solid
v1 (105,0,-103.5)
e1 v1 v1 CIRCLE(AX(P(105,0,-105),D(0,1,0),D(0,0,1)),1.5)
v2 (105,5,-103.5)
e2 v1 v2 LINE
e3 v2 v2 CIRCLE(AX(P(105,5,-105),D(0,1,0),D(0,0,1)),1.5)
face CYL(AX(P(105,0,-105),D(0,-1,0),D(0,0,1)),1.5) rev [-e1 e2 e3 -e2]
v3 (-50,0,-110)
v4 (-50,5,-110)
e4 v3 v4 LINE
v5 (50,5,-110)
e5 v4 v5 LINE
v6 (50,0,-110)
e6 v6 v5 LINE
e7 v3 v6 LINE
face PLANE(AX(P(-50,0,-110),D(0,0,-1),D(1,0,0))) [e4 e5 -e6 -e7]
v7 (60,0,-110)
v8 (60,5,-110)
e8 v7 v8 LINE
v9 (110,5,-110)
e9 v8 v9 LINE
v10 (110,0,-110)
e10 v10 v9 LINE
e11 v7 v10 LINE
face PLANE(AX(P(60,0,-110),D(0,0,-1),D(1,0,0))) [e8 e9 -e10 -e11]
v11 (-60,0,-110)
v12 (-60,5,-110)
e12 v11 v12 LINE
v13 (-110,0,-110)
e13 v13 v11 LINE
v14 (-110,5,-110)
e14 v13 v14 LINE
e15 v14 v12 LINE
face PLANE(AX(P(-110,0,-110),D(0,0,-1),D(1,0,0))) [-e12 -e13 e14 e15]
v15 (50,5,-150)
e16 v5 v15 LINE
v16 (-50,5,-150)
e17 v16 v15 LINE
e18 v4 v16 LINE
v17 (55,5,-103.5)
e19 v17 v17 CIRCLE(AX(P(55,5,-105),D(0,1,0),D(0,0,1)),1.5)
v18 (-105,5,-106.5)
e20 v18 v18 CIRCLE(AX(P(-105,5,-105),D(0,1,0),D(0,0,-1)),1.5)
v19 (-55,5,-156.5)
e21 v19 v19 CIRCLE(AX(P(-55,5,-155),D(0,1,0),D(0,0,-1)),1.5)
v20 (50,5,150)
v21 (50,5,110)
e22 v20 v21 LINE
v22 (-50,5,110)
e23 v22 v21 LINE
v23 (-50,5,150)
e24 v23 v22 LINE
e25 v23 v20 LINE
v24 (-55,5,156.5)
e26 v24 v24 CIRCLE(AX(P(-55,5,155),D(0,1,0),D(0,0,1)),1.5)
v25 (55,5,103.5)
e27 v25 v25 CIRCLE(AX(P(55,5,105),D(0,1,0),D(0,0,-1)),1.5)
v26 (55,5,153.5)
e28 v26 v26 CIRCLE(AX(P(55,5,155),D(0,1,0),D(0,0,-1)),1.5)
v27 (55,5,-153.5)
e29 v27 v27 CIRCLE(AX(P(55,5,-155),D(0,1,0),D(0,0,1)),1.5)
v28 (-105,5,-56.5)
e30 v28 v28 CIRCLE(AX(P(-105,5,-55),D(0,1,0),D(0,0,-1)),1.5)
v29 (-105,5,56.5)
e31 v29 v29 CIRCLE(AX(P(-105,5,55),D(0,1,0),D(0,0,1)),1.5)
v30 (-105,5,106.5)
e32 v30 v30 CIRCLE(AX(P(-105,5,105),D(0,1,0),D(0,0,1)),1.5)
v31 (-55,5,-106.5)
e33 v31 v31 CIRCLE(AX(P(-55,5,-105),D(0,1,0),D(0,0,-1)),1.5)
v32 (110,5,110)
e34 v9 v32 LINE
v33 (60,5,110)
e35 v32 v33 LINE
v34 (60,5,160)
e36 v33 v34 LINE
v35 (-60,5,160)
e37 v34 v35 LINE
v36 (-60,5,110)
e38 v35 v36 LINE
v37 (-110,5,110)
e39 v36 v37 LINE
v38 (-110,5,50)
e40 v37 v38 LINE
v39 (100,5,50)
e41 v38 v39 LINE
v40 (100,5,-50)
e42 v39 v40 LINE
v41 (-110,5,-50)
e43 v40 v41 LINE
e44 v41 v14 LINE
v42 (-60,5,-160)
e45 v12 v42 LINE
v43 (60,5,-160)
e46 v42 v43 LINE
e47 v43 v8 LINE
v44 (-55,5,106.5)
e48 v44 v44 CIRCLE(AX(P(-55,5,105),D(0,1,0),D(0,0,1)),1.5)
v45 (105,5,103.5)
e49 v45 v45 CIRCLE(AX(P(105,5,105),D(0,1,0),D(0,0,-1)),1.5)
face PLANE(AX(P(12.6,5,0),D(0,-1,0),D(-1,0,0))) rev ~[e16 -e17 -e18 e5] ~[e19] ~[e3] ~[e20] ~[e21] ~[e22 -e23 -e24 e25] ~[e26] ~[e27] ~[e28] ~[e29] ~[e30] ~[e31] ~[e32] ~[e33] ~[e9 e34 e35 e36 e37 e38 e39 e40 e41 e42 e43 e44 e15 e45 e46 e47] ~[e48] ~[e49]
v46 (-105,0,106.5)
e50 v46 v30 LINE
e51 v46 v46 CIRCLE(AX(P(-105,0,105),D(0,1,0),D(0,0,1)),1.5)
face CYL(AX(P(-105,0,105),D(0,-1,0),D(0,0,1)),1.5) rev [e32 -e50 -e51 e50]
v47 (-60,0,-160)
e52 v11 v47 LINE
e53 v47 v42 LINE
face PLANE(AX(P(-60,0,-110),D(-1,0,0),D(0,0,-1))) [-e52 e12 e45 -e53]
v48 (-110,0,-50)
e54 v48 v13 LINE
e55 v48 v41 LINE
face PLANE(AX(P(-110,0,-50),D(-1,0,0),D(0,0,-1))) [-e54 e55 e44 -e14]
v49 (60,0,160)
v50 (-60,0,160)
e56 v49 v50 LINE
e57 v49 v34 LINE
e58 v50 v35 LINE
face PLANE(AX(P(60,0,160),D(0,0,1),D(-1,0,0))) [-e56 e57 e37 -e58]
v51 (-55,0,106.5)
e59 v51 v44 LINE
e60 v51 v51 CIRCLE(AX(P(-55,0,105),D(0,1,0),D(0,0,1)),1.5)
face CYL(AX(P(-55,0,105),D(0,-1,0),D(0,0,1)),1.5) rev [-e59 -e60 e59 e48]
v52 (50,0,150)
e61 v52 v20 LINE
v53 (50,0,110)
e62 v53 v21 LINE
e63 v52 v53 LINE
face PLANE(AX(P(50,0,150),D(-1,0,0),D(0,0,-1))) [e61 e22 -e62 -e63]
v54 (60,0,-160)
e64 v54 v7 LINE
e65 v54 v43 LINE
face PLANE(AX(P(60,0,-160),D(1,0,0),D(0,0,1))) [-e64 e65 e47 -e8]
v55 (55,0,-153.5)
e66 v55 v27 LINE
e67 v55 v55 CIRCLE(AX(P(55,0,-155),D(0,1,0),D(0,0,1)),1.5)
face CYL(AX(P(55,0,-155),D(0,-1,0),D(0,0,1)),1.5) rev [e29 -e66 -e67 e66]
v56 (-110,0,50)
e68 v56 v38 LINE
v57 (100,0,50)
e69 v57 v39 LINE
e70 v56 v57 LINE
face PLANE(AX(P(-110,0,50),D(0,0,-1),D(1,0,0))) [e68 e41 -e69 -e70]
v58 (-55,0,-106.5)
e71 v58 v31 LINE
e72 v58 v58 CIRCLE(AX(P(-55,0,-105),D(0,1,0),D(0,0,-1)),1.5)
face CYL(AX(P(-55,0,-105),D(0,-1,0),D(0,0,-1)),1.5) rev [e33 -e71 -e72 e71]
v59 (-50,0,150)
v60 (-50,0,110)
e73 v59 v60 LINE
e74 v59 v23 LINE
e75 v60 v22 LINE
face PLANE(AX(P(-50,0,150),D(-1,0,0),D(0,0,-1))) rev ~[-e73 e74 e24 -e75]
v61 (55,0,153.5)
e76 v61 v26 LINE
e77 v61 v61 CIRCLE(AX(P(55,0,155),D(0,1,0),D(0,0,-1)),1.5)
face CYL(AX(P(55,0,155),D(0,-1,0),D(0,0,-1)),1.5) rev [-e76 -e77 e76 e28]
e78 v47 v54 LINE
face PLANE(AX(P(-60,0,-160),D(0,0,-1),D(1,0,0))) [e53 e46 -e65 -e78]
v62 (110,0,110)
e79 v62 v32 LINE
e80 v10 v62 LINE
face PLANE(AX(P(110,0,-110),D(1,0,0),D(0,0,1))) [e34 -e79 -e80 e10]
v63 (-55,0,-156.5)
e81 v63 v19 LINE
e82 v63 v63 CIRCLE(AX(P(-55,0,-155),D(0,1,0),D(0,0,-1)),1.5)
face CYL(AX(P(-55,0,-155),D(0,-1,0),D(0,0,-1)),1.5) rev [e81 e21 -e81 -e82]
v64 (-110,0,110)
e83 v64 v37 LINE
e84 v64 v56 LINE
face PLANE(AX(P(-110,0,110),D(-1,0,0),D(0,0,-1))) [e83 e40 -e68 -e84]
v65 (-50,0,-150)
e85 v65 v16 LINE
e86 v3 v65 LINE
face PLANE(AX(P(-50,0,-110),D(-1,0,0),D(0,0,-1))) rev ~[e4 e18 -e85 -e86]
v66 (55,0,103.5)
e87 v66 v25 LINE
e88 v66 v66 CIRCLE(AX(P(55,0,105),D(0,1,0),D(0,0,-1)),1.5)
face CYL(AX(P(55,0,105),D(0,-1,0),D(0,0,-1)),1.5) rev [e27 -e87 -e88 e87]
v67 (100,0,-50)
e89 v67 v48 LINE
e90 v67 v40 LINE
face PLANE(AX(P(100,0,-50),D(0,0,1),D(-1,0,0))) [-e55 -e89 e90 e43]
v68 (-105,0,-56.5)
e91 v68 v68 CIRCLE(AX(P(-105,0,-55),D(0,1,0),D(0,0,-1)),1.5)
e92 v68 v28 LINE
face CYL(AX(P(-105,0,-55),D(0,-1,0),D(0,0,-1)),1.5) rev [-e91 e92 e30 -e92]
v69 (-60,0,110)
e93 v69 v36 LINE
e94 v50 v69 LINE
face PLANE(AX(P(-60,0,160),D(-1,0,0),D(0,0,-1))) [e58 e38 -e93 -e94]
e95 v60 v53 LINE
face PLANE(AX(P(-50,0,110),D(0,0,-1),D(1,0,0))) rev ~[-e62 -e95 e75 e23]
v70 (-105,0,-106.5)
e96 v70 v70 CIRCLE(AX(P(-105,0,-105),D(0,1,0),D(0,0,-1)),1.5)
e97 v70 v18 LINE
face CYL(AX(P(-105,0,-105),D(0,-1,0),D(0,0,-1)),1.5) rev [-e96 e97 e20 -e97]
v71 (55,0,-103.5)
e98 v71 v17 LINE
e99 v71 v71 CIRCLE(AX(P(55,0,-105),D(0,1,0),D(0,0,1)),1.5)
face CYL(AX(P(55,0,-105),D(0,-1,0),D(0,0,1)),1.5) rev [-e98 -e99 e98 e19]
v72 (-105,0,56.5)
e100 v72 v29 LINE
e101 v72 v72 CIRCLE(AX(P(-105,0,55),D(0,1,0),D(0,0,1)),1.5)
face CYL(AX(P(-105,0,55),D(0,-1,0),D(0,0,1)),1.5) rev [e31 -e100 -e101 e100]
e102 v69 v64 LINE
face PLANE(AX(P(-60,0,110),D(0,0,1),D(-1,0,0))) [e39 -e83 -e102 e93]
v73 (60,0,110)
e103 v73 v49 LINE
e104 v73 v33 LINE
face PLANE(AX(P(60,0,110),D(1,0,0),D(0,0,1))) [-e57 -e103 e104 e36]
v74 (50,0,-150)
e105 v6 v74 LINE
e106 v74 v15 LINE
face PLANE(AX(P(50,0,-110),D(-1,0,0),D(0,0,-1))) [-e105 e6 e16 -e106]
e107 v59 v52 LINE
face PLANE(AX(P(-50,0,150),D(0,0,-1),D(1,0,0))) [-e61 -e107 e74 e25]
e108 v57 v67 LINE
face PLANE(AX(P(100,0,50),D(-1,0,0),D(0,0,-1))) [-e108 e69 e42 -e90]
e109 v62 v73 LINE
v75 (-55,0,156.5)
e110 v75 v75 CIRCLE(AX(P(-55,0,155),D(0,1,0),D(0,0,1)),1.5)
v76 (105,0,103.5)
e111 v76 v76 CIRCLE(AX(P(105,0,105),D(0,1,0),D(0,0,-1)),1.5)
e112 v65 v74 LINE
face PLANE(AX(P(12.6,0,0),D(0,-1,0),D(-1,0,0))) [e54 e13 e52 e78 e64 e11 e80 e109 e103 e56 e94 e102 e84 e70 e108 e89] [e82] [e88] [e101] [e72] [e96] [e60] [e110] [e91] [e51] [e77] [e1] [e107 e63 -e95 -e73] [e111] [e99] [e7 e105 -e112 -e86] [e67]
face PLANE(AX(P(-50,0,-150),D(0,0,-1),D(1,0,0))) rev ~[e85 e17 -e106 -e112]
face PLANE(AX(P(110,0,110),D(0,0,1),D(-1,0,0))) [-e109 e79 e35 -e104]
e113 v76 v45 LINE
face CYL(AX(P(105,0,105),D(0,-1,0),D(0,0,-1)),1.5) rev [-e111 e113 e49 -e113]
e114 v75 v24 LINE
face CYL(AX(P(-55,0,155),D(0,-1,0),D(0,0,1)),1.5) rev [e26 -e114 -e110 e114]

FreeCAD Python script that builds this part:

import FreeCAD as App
import Part
import Sketcher

V = App.Vector
Q = App.Units.Quantity

doc = App.newDocument("Part")
body = doc.addObject("PartDesign::Body", "Body")

# Sketch on XZ plane
sketch1 = body.newObject("Sketcher::SketchObject", "Sketch")
sketch1.AttachmentSupport = (doc.getObject("XZ_Plane"), [""])
sketch1.MapMode = "FlatFace"
sketch1.addGeometry(Part.LineSegment(V(-60, -160, 0), V(-60, -110, 0)), False)
sketch1.addGeometry(Part.LineSegment(V(-60, -110, 0), V(-110, -110, 0)), False)
sketch1.addGeometry(Part.LineSegment(V(-110, -110, 0), V(-110, -50, 0)), False)
sketch1.addGeometry(Part.LineSegment(V(-110, -50, 0), V(100, -50, 0)), False)
sketch1.addGeometry(Part.LineSegment(V(100, -50, 0), V(100, 50, 0)), False)
sketch1.addGeometry(Part.LineSegment(V(100, 50, 0), V(-110, 50, 0)), False)
sketch1.addGeometry(Part.LineSegment(V(-110, 50, 0), V(-110, 110, 0)), False)
sketch1.addGeometry(Part.LineSegment(V(-110, 110, 0), V(-60, 110, 0)), False)
sketch1.addGeometry(Part.LineSegment(V(-60, 110, 0), V(-60, 160, 0)), False)
sketch1.addGeometry(Part.LineSegment(V(-60, 160, 0), V(60, 160, 0)), False)
sketch1.addGeometry(Part.LineSegment(V(60, 160, 0), V(60, 110, 0)), False)
sketch1.addGeometry(Part.LineSegment(V(60, 110, 0), V(110, 110, 0)), False)
sketch1.addGeometry(Part.LineSegment(V(110, 110, 0), V(110, -110, 0)), False)
sketch1.addGeometry(Part.LineSegment(V(110, -110, 0), V(60, -110, 0)), False)
sketch1.addGeometry(Part.LineSegment(V(60, -110, 0), V(60, -160, 0)), False)
sketch1.addGeometry(Part.LineSegment(V(60, -160, 0), V(-60, -160, 0)), False)
sketch1.addGeometry(Part.Circle(V(55, 155, 0), V(0, 0, 1), 1.5), False)
sketch1.addGeometry(Part.Circle(V(105, 105, 0), V(0, 0, 1), 1.5), False)
sketch1.addGeometry(Part.Circle(V(55, 105, 0), V(0, 0, 1), 1.5), False)
sketch1.addGeometry(Part.LineSegment(V(-50, 150, 0), V(-50, 110, 0)), False)
sketch1.addGeometry(Part.LineSegment(V(-50, 110, 0), V(50, 110, 0)), False)
sketch1.addGeometry(Part.LineSegment(V(50, 110, 0), V(50, 150, 0)), False)
sketch1.addGeometry(Part.LineSegment(V(50, 150, 0), V(-50, 150, 0)), False)
sketch1.addGeometry(Part.Circle(V(-55, 155, 0), V(0, 0, 1), 1.5), False)
sketch1.addGeometry(Part.Circle(V(-55, 105, 0), V(0, 0, 1), 1.5), False)
sketch1.addGeometry(Part.Circle(V(-105, 105, 0), V(0, 0, 1), 1.5), False)
sketch1.addGeometry(Part.Circle(V(-105, 55, 0), V(0, 0, 1), 1.5), False)
sketch1.addGeometry(Part.Circle(V(105, -105, 0), V(0, 0, 1), 1.5), False)
sketch1.addGeometry(Part.Circle(V(55, -105, 0), V(0, 0, 1), 1.5), False)
sketch1.addGeometry(Part.Circle(V(55, -155, 0), V(0, 0, 1), 1.5), False)
sketch1.addGeometry(Part.Circle(V(-105, -55, 0), V(0, 0, 1), 1.5), False)
sketch1.addGeometry(Part.LineSegment(V(-50, -110, 0), V(-50, -150, 0)), False)
sketch1.addGeometry(Part.LineSegment(V(-50, -150, 0), V(50, -150, 0)), False)
sketch1.addGeometry(Part.LineSegment(V(50, -150, 0), V(50, -110, 0)), False)
sketch1.addGeometry(Part.LineSegment(V(50, -110, 0), V(-50, -110, 0)), False)
sketch1.addGeometry(Part.Circle(V(-55, -105, 0), V(0, 0, 1), 1.5), False)
sketch1.addGeometry(Part.Circle(V(-105, -105, 0), V(0, 0, 1), 1.5), False)
sketch1.addGeometry(Part.Circle(V(-55, -155, 0), V(0, 0, 1), 1.5), False)
sketch1.addConstraint(Sketcher.Constraint("Coincident", 0, 2, 1, 1))
sketch1.addConstraint(Sketcher.Constraint("Coincident", 1, 2, 2, 1))
sketch1.addConstraint(Sketcher.Constraint("Coincident", 2, 2, 3, 1))
sketch1.addConstraint(Sketcher.Constraint("Coincident", 3, 2, 4, 1))
sketch1.addConstraint(Sketcher.Constraint("Coincident", 4, 2, 5, 1))
sketch1.addConstraint(Sketcher.Constraint("Coincident", 5, 2, 6, 1))
sketch1.addConstraint(Sketcher.Constraint("Coincident", 6, 2, 7, 1))
sketch1.addConstraint(Sketcher.Constraint("Coincident", 7, 2, 8, 1))
sketch1.addConstraint(Sketcher.Constraint("Coincident", 8, 2, 9, 1))
sketch1.addConstraint(Sketcher.Constraint("Coincident", 9, 2, 10, 1))
sketch1.addConstraint(Sketcher.Constraint("Coincident", 10, 2, 11, 1))
sketch1.addConstraint(Sketcher.Constraint("Coincident", 11, 2, 12, 1))
sketch1.addConstraint(Sketcher.Constraint("Coincident", 12, 2, 13, 1))
sketch1.addConstraint(Sketcher.Constraint("Coincident", 13, 2, 14, 1))
sketch1.addConstraint(Sketcher.Constraint("Coincident", 14, 2, 15, 1))
sketch1.addConstraint(Sketcher.Constraint("Coincident", 15, 2, 0, 1))
sketch1.addConstraint(Sketcher.Constraint("Coincident", 19, 2, 20, 1))
sketch1.addConstraint(Sketcher.Constraint("Coincident", 20, 2, 21, 1))
sketch1.addConstraint(Sketcher.Constraint("Coincident", 21, 2, 22, 1))
sketch1.addConstraint(Sketcher.Constraint("Coincident", 22, 2, 19, 1))
sketch1.addConstraint(Sketcher.Constraint("Coincident", 31, 2, 32, 1))
sketch1.addConstraint(Sketcher.Constraint("Coincident", 32, 2, 33, 1))
sketch1.addConstraint(Sketcher.Constraint("Coincident", 33, 2, 34, 1))
sketch1.addConstraint(Sketcher.Constraint("Coincident", 34, 2, 31, 1))
sketch1.addConstraint(Sketcher.Constraint("Vertical", 0))
sketch1.addConstraint(Sketcher.Constraint("Horizontal", 1))
sketch1.addConstraint(Sketcher.Constraint("Vertical", 2))
sketch1.addConstraint(Sketcher.Constraint("Horizontal", 3))
sketch1.addConstraint(Sketcher.Constraint("Vertical", 4))
sketch1.addConstraint(Sketcher.Constraint("Horizontal", 5))
sketch1.addConstraint(Sketcher.Constraint("Vertical", 6))
sketch1.addConstraint(Sketcher.Constraint("Horizontal", 7))
sketch1.addConstraint(Sketcher.Constraint("Vertical", 8))
sketch1.addConstraint(Sketcher.Constraint("Horizontal", 9))
sketch1.addConstraint(Sketcher.Constraint("Vertical", 10))
sketch1.addConstraint(Sketcher.Constraint("Horizontal", 11))
sketch1.addConstraint(Sketcher.Constraint("Vertical", 12))
sketch1.addConstraint(Sketcher.Constraint("Horizontal", 13))
sketch1.addConstraint(Sketcher.Constraint("Vertical", 14))
sketch1.addConstraint(Sketcher.Constraint("Horizontal", 15))
sketch1.addConstraint(Sketcher.Constraint("Vertical", 19))
sketch1.addConstraint(Sketcher.Constraint("Horizontal", 20))
sketch1.addConstraint(Sketcher.Constraint("Vertical", 21))
sketch1.addConstraint(Sketcher.Constraint("Horizontal", 22))
sketch1.addConstraint(Sketcher.Constraint("Vertical", 31))
sketch1.addConstraint(Sketcher.Constraint("Horizontal", 32))
sketch1.addConstraint(Sketcher.Constraint("Vertical", 33))
sketch1.addConstraint(Sketcher.Constraint("Horizontal", 34))
sketch1.addConstraint(Sketcher.Constraint("Equal", 16, 17))
sketch1.addConstraint(Sketcher.Constraint("Equal", 17, 18))
sketch1.addConstraint(Sketcher.Constraint("Equal", 18, 23))
sketch1.addConstraint(Sketcher.Constraint("Equal", 23, 24))
sketch1.addConstraint(Sketcher.Constraint("Equal", 24, 25))
sketch1.addConstraint(Sketcher.Constraint("Equal", 25, 26))
sketch1.addConstraint(Sketcher.Constraint("Equal", 26, 27))
sketch1.addConstraint(Sketcher.Constraint("Equal", 27, 28))
sketch1.addConstraint(Sketcher.Constraint("Equal", 28, 29))
sketch1.addConstraint(Sketcher.Constraint("Equal", 29, 30))
sketch1.addConstraint(Sketcher.Constraint("Equal", 30, 35))
sketch1.addConstraint(Sketcher.Constraint("Equal", 35, 36))
sketch1.addConstraint(Sketcher.Constraint("Equal", 36, 37))
sketch1.addConstraint(Sketcher.Constraint("Symmetric", 25, 3, 27, 3, -1, 1))
sketch1.addConstraint(Sketcher.Constraint("Symmetric", 24, 3, 28, 3, -1, 1))
sketch1.addConstraint(Sketcher.Constraint("Symmetric", 23, 3, 29, 3, -1, 1))
sketch1.addConstraint(Sketcher.Constraint("Symmetric", 18, 3, 35, 3, -1, 1))
sketch1.addConstraint(Sketcher.Constraint("Symmetric", 17, 3, 36, 3, -1, 1))
sketch1.addConstraint(Sketcher.Constraint("Symmetric", 16, 3, 37, 3, -1, 1))
sketch1.addConstraint(Sketcher.Constraint("Symmetric", 0, 2, 10, 2, -1, 1))
sketch1.addConstraint(Sketcher.Constraint("Symmetric", 6, 2, 12, 2, -1, 1))
sketch1.addConstraint(Sketcher.Constraint("Symmetric", 8, 2, 14, 2, -1, 1))
sketch1.addConstraint(Sketcher.Constraint("Symmetric", 21, 2, 31, 2, -1, 1))
sketch1.addConstraint(Sketcher.Constraint("Symmetric", 19, 2, 33, 2, -1, 1))
sketch1.addConstraint(Sketcher.Constraint("Symmetric", 16, 3, 23, 3, -2))
sketch1.addConstraint(Sketcher.Constraint("Symmetric", 18, 3, 24, 3, -2))
sketch1.addConstraint(Sketcher.Constraint("Symmetric", 17, 3, 25, 3, -2))
sketch1.addConstraint(Sketcher.Constraint("Symmetric", 7, 2, 10, 2, -2))
sketch1.addConstraint(Sketcher.Constraint("Symmetric", 26, 3, 30, 3, -1))
sketch1.addConstraint(Sketcher.Constraint("Symmetric", 2, 2, 5, 2, -1))
sketch1.addConstraint(Sketcher.Constraint("Horizontal", 17, 3, 18, 3))
sketch1.addConstraint(Sketcher.Constraint("Horizontal", 11, 2, 19, 2))
sketch1.addConstraint(Sketcher.Constraint("Vertical", 16, 3, 18, 3))
sketch1.addConstraint(Sketcher.Constraint("Vertical", 25, 3, 26, 3))
sketch1.addConstraint(Sketcher.Constraint("Vertical", 22, 2, 31, 2))
sketch1.addConstraint(Sketcher.Constraint("Equal", 13, 0))
sketch1.addConstraint(Sketcher.Constraint("Equal", 34, 4))
sketch1.addConstraint(Sketcher.Constraint("Diameter", 16, Q("3 mm")))
sketch1.addConstraint(Sketcher.Constraint("DistanceX", 1, 2, 1, 1, Q("50 mm")))
sketch1.addConstraint(Sketcher.Constraint("DistanceX", 3, 1, 3, 2, Q("210 mm")))
sketch1.addConstraint(Sketcher.Constraint("DistanceX", 9, 1, 9, 2, Q("120 mm")))
sketch1.addConstraint(Sketcher.Constraint("DistanceX", 20, 1, 20, 2, Q("100 mm")))
sketch1.addConstraint(Sketcher.Constraint("DistanceY", 2, 1, 2, 2, Q("60 mm")))
sketch1.addConstraint(Sketcher.Constraint("DistanceY", 19, 2, 19, 1, Q("40 mm")))
sketch1.addConstraint(Sketcher.Constraint("DistanceX", -1, 1, 16, 3, Q("55 mm")))
sketch1.addConstraint(Sketcher.Constraint("DistanceY", -1, 1, 16, 3, Q("155 mm")))
sketch1.addConstraint(Sketcher.Constraint("DistanceX", -1, 1, 17, 3, Q("105 mm")))
sketch1.addConstraint(Sketcher.Constraint("DistanceY", -1, 1, 17, 3, Q("105 mm")))
sketch1.addConstraint(Sketcher.Constraint("DistanceY", -1, 1, 26, 3, Q("55 mm")))
pad1 = body.newObject("PartDesign::Pad", "Pad")
pad1.Profile = sketch1
pad1.Length = 5
pad1.Reversed = True

doc.recompute()
